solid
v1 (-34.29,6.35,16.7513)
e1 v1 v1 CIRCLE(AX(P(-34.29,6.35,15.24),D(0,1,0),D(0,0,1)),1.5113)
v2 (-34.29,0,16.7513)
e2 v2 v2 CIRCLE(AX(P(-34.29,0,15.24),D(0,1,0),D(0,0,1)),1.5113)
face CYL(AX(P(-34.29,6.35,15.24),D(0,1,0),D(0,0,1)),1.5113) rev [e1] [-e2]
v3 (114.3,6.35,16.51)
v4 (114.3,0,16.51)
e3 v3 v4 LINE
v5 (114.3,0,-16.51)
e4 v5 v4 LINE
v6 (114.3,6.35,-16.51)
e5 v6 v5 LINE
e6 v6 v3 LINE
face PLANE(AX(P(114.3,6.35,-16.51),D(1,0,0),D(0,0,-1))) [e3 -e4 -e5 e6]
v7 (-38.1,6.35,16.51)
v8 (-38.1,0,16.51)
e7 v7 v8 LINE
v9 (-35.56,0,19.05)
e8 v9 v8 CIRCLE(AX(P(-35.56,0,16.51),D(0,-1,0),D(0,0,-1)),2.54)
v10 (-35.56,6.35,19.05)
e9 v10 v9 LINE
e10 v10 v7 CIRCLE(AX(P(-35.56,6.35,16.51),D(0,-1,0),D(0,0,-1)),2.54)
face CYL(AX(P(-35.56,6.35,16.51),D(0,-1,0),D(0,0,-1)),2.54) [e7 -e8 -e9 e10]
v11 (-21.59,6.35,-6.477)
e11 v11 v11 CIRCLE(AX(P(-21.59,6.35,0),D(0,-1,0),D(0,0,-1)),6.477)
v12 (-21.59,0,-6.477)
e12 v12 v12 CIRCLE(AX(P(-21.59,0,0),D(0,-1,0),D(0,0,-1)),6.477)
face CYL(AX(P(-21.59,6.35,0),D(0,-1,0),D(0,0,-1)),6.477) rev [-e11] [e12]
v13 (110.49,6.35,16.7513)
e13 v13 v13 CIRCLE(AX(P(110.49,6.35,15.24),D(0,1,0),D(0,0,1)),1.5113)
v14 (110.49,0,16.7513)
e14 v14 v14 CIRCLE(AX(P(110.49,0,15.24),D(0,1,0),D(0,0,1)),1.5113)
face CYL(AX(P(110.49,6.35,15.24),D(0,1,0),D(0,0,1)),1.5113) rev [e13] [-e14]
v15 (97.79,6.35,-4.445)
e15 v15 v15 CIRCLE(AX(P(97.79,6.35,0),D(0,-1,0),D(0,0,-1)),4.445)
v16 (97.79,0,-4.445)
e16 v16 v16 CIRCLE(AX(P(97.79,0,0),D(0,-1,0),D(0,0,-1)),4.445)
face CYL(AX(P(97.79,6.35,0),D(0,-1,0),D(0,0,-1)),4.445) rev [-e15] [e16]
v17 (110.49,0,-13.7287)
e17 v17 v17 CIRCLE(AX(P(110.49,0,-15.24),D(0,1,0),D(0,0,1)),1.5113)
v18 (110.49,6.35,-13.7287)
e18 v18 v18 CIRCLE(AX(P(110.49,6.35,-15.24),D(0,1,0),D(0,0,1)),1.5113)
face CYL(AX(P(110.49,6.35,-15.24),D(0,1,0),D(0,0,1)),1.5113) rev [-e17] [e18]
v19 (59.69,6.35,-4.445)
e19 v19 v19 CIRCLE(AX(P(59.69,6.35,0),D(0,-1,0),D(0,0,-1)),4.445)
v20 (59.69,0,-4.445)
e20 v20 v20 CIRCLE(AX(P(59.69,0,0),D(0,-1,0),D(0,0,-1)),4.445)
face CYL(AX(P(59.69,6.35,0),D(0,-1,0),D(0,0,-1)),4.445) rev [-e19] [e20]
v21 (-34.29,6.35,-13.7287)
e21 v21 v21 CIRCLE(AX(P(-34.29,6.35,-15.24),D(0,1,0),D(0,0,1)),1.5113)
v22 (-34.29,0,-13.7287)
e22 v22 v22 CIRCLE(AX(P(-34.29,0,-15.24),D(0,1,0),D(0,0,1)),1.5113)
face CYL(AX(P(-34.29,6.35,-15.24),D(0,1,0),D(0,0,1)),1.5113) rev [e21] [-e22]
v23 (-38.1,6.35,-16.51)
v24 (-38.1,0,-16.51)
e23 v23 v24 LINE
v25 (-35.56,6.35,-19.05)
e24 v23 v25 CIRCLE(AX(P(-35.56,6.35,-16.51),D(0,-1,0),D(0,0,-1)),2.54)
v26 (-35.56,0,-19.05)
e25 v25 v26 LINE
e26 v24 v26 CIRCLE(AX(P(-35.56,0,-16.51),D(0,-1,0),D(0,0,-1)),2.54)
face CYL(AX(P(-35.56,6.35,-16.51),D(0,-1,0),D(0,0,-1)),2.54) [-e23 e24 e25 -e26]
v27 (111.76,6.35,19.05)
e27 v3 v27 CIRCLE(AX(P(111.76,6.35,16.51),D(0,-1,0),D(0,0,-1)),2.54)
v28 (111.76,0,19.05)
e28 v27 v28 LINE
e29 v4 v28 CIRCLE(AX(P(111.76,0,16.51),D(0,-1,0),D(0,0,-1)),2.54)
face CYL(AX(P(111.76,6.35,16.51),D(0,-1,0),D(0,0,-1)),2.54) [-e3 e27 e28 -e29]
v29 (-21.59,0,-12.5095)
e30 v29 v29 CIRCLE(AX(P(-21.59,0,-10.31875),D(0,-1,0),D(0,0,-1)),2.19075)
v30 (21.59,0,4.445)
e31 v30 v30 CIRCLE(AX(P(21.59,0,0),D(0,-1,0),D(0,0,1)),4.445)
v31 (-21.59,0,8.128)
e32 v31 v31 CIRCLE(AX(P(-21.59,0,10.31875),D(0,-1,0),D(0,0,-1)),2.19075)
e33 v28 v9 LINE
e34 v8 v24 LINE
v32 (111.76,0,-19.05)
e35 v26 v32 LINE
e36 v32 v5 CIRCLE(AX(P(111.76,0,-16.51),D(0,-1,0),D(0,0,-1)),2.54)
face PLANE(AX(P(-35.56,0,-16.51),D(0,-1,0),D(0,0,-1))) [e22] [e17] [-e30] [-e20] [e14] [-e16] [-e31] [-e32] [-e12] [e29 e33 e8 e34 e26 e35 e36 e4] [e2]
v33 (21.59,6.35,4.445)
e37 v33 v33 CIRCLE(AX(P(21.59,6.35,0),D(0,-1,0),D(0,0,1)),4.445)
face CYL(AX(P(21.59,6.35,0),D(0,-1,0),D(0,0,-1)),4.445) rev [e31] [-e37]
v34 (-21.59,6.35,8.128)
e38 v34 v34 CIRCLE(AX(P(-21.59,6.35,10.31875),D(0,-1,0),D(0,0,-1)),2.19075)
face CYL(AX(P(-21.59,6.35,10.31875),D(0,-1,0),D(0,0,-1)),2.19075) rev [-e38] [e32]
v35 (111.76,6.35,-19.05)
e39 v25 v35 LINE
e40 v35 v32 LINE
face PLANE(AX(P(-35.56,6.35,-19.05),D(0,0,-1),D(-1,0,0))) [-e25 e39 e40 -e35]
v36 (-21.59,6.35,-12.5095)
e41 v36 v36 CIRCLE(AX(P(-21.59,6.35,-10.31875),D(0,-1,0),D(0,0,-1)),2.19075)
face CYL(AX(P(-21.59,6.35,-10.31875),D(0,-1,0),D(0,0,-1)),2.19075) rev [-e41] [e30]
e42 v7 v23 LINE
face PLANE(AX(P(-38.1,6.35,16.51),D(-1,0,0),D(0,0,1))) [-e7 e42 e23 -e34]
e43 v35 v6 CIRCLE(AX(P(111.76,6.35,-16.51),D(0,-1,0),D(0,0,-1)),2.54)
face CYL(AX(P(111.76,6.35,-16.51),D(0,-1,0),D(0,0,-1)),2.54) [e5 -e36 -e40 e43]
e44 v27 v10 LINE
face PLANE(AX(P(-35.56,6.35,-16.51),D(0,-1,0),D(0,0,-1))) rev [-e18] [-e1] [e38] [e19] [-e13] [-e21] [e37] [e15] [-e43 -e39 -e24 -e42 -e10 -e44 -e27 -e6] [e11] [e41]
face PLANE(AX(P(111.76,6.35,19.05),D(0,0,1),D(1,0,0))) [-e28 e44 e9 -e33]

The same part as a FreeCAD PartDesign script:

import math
import FreeCAD as App
import Part
import Sketcher
Q = App.Units.Quantity

doc = App.newDocument("Part")
body = doc.addObject("PartDesign::Body", "Body")

# Sketch on XZ plane
sketch1 = doc.addObject("Sketcher::SketchObject", "Sketch")
body.addObject(sketch1)
sketch1.AttachmentSupport = (doc.XZ_Plane, [""])
sketch1.MapMode = "FlatFace"
sketch1.addGeometry([
    Part.LineSegment(App.Vector(-35.6, -19.1, 0), App.Vector(111.8, -19.1, 0)),  # 0
    Part.ArcOfCircle(Part.Circle(App.Vector(111.8, -16.5, 0), App.Vector(0, 0, 1), 2.5), math.radians(-90), math.radians(0)),  # 1
    Part.LineSegment(App.Vector(114.3, -16.5, 0), App.Vector(114.3, 16.5, 0)),  # 2
    Part.ArcOfCircle(Part.Circle(App.Vector(111.8, 16.5, 0), App.Vector(0, 0, 1), 2.5), math.radians(0), math.radians(90)),  # 3
    Part.LineSegment(App.Vector(111.8, 19.1, 0), App.Vector(-35.6, 19.1, 0)),  # 4
    Part.ArcOfCircle(Part.Circle(App.Vector(-35.6, 16.5, 0), App.Vector(0, 0, 1), 2.5), math.radians(90), math.radians(180)),  # 5
    Part.LineSegment(App.Vector(-38.1, 16.5, 0), App.Vector(-38.1, -16.5, 0)),  # 6
    Part.ArcOfCircle(Part.Circle(App.Vector(-35.6, -16.5, 0), App.Vector(0, 0, 1), 2.5), math.radians(-180), math.radians(-90)),  # 7
    Part.Circle(App.Vector(-21.6, -10.3, 0), App.Vector(0, 0, 1), 2.2),  # 8
    Part.Circle(App.Vector(-21.6, 0, 0), App.Vector(0, 0, 1), 6.5),  # 9
    Part.Circle(App.Vector(21.6, 0, 0), App.Vector(0, 0, 1), 4.4),  # 10
    Part.Circle(App.Vector(-21.6, 10.3, 0), App.Vector(0, 0, 1), 2.2),  # 11
    Part.Circle(App.Vector(59.7, 0, 0), App.Vector(0, 0, 1), 4.4),  # 12
    Part.Circle(App.Vector(97.8, 0, 0), App.Vector(0, 0, 1), 4.4),  # 13
], False)
sketch1.addConstraint([
    Sketcher.Constraint("Tangent", 0, 2, 1, 1),
    Sketcher.Constraint("Tangent", 1, 2, 2, 1),
    Sketcher.Constraint("Tangent", 2, 2, 3, 1),
    Sketcher.Constraint("Tangent", 3, 2, 4, 1),
    Sketcher.Constraint("Tangent", 4, 2, 5, 1),
    Sketcher.Constraint("Tangent", 5, 2, 6, 1),
    Sketcher.Constraint("Tangent", 6, 2, 7, 1),
    Sketcher.Constraint("Tangent", 7, 2, 0, 1),
    Sketcher.Constraint("Horizontal", 0),
    Sketcher.Constraint("Vertical", 2),
    Sketcher.Constraint("Horizontal", 4),
    Sketcher.Constraint("Vertical", 6),
    Sketcher.Constraint("Equal", 1, 3),
    Sketcher.Constraint("Equal", 3, 5),
    Sketcher.Constraint("Equal", 5, 7),
    Sketcher.Constraint("Equal", 8, 11),
    Sketcher.Constraint("Equal", 10, 12),
    Sketcher.Constraint("Equal", 12, 13),
    Sketcher.Constraint("Symmetric", 9, 3, 10, 3, -1, 1),
    Sketcher.Constraint("Symmetric", 8, 3, 11, 3, -1),
    Sketcher.Constraint("PointOnObject", 9, 3, -1),
    Sketcher.Constraint("PointOnObject", 12, 3, -1),
    Sketcher.Constraint("PointOnObject", 13, 3, -1),
    Sketcher.Constraint("Vertical", 8, 3, 9, 3),
    Sketcher.Constraint("Radius", 1, Q("0.1 in")),
    Sketcher.Constraint("Diameter", 9, Q("0.51 in")),
    Sketcher.Constraint("Diameter", 10, Q("0.35 in")),
    Sketcher.Constraint("DistanceX", 0, 1, 0, 2, Q("5.8 in")),
    Sketcher.Constraint("DistanceY", 2, 1, 2, 2, Q("1.3 in")),
    Sketcher.Constraint("DistanceX", 10, 3, 13, 3, Q("3 in")),
    Sketcher.Constraint("Diameter", 8, Q("0.1725 in")),
    Sketcher.Constraint("DistanceX", -1, 1, 1, 3, Q("4.4 in")),
    Sketcher.Constraint("DistanceX", 9, 3, 10, 3, Q("1.7 in")),
    Sketcher.Constraint("DistanceX", 10, 3, 12, 3, Q("1.5 in")),
    Sketcher.Constraint("DistanceY", 1, 3, -1, 1, Q("0.65 in")),
    Sketcher.Constraint("DistanceY", 8, 3, -1, 1, Q("0.40625 in")),
])
pad1 = doc.addObject("PartDesign::Pad", "Pad")
body.addObject(pad1)
pad1.Profile = sketch1
pad1.Length = Q("0.25 in")
pad1.Reversed = True

# Sketch on XZ plane
sketch2 = doc.addObject("Sketcher::SketchObject", "Sketch001")
body.addObject(sketch2)
sketch2.AttachmentSupport = (doc.XZ_Plane, [""])
sketch2.MapMode = "FlatFace"
sketch2.AttachmentOffset = App.Placement(App.Vector(0, 0, -0.25 * 25.4), App.Rotation())
sketch2.addGeometry([
    Part.Circle(App.Vector(-34.3, -15.2, 0), App.Vector(0, 0, 1), 1.5),
    Part.Circle(App.Vector(110.5, -15.2, 0), App.Vector(0, 0, 1), 1.5),
    Part.Circle(App.Vector(110.5, 15.2, 0), App.Vector(0, 0, 1), 1.5),
    Part.Circle(App.Vector(-34.3, 15.2, 0), App.Vector(0, 0, 1), 1.5),
], False)
sketch2.addConstraint([
    Sketcher.Constraint("Equal", 0, 1),
    Sketcher.Constraint("Equal", 1, 2),
    Sketcher.Constraint("Equal", 2, 3),
    Sketcher.Constraint("Symmetric", 1, 3, 2, 3, -1),
    Sketcher.Constraint("Symmetric", 0, 3, 3, 3, -1),
    Sketcher.Constraint("Horizontal", 0, 3, 1, 3),
    Sketcher.Constraint("Diameter", 0, Q("0.119 in")),
    Sketcher.Constraint("DistanceY", 0, 3, -1, 1, Q("0.6 in")),
    Sketcher.Constraint("DistanceX", 0, 3, 1, 3, Q("5.7 in")),
    Sketcher.Constraint("DistanceX", 0, 3, -1, 1, Q("1.35 in")),
])
doc.recompute()
hole = doc.addObject("PartDesign::Hole", "Hole")
body.addObject(hole)
hole.Profile = sketch2
hole.ThreadType = "None"
hole.Diameter = Q("0.119 in")
hole.DepthType = "ThroughAll"
hole.Reversed = True

doc.recompute()
